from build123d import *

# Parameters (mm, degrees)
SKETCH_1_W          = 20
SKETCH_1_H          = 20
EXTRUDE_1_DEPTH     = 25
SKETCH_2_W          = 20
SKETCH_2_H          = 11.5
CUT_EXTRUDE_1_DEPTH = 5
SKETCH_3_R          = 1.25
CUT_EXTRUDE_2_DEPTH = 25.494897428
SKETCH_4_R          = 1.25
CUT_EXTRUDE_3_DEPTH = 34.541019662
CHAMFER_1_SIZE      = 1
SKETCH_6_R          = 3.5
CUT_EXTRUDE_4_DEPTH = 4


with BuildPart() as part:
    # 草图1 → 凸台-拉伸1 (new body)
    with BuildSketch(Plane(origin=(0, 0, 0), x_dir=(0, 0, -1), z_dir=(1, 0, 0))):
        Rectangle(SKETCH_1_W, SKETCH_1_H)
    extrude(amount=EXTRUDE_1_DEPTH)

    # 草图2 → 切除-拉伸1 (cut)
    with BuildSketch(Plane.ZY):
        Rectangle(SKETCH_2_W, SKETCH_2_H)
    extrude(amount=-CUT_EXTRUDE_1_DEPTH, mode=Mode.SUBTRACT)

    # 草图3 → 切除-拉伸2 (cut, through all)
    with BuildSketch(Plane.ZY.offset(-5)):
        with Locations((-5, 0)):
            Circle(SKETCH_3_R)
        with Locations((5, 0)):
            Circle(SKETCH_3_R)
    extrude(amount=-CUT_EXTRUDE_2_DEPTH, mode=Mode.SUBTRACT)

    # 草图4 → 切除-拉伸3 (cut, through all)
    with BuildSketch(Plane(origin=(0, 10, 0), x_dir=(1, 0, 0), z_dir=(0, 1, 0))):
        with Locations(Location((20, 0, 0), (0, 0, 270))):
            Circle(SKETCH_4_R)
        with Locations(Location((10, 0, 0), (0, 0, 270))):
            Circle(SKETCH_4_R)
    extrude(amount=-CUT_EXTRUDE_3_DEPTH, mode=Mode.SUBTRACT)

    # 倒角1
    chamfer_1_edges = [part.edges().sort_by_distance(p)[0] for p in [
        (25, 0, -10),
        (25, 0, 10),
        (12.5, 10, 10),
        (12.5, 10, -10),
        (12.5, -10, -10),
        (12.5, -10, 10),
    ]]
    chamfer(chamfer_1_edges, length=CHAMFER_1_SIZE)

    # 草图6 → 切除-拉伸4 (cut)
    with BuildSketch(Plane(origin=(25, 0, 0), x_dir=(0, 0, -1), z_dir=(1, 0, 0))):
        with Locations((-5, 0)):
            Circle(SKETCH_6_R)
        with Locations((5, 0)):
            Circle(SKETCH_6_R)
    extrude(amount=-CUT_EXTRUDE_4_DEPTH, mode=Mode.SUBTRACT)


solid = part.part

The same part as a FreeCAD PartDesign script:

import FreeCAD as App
import Part
import Sketcher

V = App.Vector


def edges_at(feature, points):
    """Names of the edges that pass closest to the given points."""
    edges = feature.Shape.Edges
    near = lambda p: min(range(len(edges)), key=lambda i: edges[i].distToShape(Part.Vertex(*p))[0])
    return sorted({f"Edge{near(p) + 1}" for p in points})

doc = App.newDocument("Part")
body = doc.addObject("PartDesign::Body", "Body")

# Sketch on YZ plane
sketch1 = body.newObject("Sketcher::SketchObject", "Sketch")
sketch1.AttachmentSupport = (doc.getObject("YZ_Plane"), [""])
sketch1.MapMode = "FlatFace"
sketch1.addGeometry([
    Part.LineSegment(V(10, 10, 0), V(-10, 10, 0)),
    Part.LineSegment(V(-10, 10, 0), V(-10, -10, 0)),
    Part.LineSegment(V(-10, -10, 0), V(10, -10, 0)),
    Part.LineSegment(V(10, -10, 0), V(10, 10, 0)),
], False)
sketch1.addConstraint([
    Sketcher.Constraint("Coincident", 0, 2, 1, 1),
    Sketcher.Constraint("Coincident", 1, 2, 2, 1),
    Sketcher.Constraint("Coincident", 2, 2, 3, 1),
    Sketcher.Constraint("Coincident", 3, 2, 0, 1),
    Sketcher.Constraint("Horizontal", 0),
    Sketcher.Constraint("Vertical", 1),
    Sketcher.Constraint("Horizontal", 2),
    Sketcher.Constraint("Vertical", 3),
    Sketcher.Constraint("Symmetric", 0, 2, 2, 2, -1, 1),
    Sketcher.Constraint("Equal", 2, 1),
    Sketcher.Constraint("DistanceX", 0, 2, 0, 1, 20.0),
])
pad1 = body.newObject("PartDesign::Pad", "Pad")
pad1.Profile = sketch1
pad1.Length = 25

# Sketch on YZ plane
sketch2 = body.newObject("Sketcher::SketchObject", "Sketch001")
sketch2.AttachmentSupport = (doc.getObject("YZ_Plane"), [""])
sketch2.MapMode = "FlatFace"
sketch2.addGeometry([
    Part.LineSegment(V(6, -10, 0), V(-6, -10, 0)),
    Part.LineSegment(V(-6, -10, 0), V(-6, 10, 0)),
    Part.LineSegment(V(-6, 10, 0), V(6, 10, 0)),
    Part.LineSegment(V(6, 10, 0), V(6, -10, 0)),
], False)
sketch2.addConstraint([
    Sketcher.Constraint("Coincident", 0, 2, 1, 1),
    Sketcher.Constraint("Coincident", 1, 2, 2, 1),
    Sketcher.Constraint("Coincident", 2, 2, 3, 1),
    Sketcher.Constraint("Coincident", 3, 2, 0, 1),
    Sketcher.Constraint("Horizontal", 0),
    Sketcher.Constraint("Vertical", 1),
    Sketcher.Constraint("Horizontal", 2),
    Sketcher.Constraint("Vertical", 3),
    Sketcher.Constraint("Symmetric", 0, 2, 2, 2, -1, 1),
    Sketcher.Constraint("DistanceY", 1, 1, 1, 2, 20.0),
    Sketcher.Constraint("DistanceX", 0, 2, 0, 1, 11.5),
])
pocket1 = body.newObject("PartDesign::Pocket", "Pocket")
pocket1.Profile = sketch2
pocket1.Length = 5
pocket1.Reversed = True

# Sketch on YZ plane
sketch3 = body.newObject("Sketcher::SketchObject", "Sketch002")
sketch3.AttachmentSupport = (doc.getObject("YZ_Plane"), [""])
sketch3.MapMode = "FlatFace"
sketch3.AttachmentOffset = App.Placement(V(0, 0, 5), App.Rotation())
sketch3.addGeometry([
    Part.Circle(V(0, -5, 0), V(0, 0, 1), 1.2),
    Part.Circle(V(0, 5, 0), V(0, 0, 1), 1.2),
], False)
sketch3.addConstraint([
    Sketcher.Constraint("Equal", 0, 1),
    Sketcher.Constraint("Symmetric", 0, 3, 1, 3, -1, 1),
    Sketcher.Constraint("PointOnObject", 0, 3, -2),
    Sketcher.Constraint("Diameter", 0, 2.5),
    Sketcher.Constraint("DistanceY", 0, 3, -1, 1, 5.0),
])
pocket2 = body.newObject("PartDesign::Pocket", "Pocket001")
pocket2.Profile = sketch3
pocket2.Type = "ThroughAll"
pocket2.Reversed = True

# Sketch on XZ plane
sketch4 = body.newObject("Sketcher::SketchObject", "Sketch003")
sketch4.AttachmentSupport = (doc.getObject("XZ_Plane"), [""])
sketch4.MapMode = "FlatFace"
sketch4.AttachmentOffset = App.Placement(V(0, 0, -10), App.Rotation())
sketch4.addGeometry([
    Part.Circle(V(20, 0, 0), V(0, 0, 1), 1.2),
    Part.Circle(V(10, 0, 0), V(0, 0, 1), 1.2),
], False)
sketch4.addConstraint([
    Sketcher.Constraint("Equal", 0, 1),
    Sketcher.Constraint("PointOnObject", 0, 3, -1),
    Sketcher.Constraint("PointOnObject", 1, 3, -1),
    Sketcher.Constraint("Diameter", 0, 2.5),
    Sketcher.Constraint("DistanceX", -1, 1, 0, 3, 20.0),
    Sketcher.Constraint("DistanceX", -1, 1, 1, 3, 10.0),
])
pocket3 = body.newObject("PartDesign::Pocket", "Pocket002")
pocket3.Profile = sketch4
pocket3.Type = "ThroughAll"
pocket3.Reversed = True
doc.recompute()

chamfer = body.newObject("PartDesign::Chamfer", "Chamfer")
chamfer.Base = (pocket3, edges_at(pocket3, [
    (25, 0, -10),
    (25, 0, 10),
    (12.5, 10, 10),
    (12.5, 10, -10),
    (12.5, -10, -10),
    (12.5, -10, 10),
]))
chamfer.Size = 1

# Sketch on YZ plane
sketch5 = body.newObject("Sketcher::SketchObject", "Sketch004")
sketch5.AttachmentSupport = (doc.getObject("YZ_Plane"), [""])
sketch5.MapMode = "FlatFace"
sketch5.AttachmentOffset = App.Placement(V(0, 0, 25), App.Rotation())
sketch5.addGeometry([
    Part.Circle(V(0, 5, 0), V(0, 0, 1), 3.5),
    Part.Circle(V(0, -5, 0), V(0, 0, 1), 3.5),
], False)
sketch5.addConstraint([
    Sketcher.Constraint("Equal", 0, 1),
    Sketcher.Constraint("Symmetric", 0, 3, 1, 3, -1, 1),
    Sketcher.Constraint("PointOnObject", 0, 3, -2),
    Sketcher.Constraint("Diameter", 0, 7.0),
    Sketcher.Constraint("DistanceY", -1, 1, 0, 3, 5.0),
])
pocket4 = body.newObject("PartDesign::Pocket", "Pocket003")
pocket4.Profile = sketch5
pocket4.Length = 4

doc.recompute()
